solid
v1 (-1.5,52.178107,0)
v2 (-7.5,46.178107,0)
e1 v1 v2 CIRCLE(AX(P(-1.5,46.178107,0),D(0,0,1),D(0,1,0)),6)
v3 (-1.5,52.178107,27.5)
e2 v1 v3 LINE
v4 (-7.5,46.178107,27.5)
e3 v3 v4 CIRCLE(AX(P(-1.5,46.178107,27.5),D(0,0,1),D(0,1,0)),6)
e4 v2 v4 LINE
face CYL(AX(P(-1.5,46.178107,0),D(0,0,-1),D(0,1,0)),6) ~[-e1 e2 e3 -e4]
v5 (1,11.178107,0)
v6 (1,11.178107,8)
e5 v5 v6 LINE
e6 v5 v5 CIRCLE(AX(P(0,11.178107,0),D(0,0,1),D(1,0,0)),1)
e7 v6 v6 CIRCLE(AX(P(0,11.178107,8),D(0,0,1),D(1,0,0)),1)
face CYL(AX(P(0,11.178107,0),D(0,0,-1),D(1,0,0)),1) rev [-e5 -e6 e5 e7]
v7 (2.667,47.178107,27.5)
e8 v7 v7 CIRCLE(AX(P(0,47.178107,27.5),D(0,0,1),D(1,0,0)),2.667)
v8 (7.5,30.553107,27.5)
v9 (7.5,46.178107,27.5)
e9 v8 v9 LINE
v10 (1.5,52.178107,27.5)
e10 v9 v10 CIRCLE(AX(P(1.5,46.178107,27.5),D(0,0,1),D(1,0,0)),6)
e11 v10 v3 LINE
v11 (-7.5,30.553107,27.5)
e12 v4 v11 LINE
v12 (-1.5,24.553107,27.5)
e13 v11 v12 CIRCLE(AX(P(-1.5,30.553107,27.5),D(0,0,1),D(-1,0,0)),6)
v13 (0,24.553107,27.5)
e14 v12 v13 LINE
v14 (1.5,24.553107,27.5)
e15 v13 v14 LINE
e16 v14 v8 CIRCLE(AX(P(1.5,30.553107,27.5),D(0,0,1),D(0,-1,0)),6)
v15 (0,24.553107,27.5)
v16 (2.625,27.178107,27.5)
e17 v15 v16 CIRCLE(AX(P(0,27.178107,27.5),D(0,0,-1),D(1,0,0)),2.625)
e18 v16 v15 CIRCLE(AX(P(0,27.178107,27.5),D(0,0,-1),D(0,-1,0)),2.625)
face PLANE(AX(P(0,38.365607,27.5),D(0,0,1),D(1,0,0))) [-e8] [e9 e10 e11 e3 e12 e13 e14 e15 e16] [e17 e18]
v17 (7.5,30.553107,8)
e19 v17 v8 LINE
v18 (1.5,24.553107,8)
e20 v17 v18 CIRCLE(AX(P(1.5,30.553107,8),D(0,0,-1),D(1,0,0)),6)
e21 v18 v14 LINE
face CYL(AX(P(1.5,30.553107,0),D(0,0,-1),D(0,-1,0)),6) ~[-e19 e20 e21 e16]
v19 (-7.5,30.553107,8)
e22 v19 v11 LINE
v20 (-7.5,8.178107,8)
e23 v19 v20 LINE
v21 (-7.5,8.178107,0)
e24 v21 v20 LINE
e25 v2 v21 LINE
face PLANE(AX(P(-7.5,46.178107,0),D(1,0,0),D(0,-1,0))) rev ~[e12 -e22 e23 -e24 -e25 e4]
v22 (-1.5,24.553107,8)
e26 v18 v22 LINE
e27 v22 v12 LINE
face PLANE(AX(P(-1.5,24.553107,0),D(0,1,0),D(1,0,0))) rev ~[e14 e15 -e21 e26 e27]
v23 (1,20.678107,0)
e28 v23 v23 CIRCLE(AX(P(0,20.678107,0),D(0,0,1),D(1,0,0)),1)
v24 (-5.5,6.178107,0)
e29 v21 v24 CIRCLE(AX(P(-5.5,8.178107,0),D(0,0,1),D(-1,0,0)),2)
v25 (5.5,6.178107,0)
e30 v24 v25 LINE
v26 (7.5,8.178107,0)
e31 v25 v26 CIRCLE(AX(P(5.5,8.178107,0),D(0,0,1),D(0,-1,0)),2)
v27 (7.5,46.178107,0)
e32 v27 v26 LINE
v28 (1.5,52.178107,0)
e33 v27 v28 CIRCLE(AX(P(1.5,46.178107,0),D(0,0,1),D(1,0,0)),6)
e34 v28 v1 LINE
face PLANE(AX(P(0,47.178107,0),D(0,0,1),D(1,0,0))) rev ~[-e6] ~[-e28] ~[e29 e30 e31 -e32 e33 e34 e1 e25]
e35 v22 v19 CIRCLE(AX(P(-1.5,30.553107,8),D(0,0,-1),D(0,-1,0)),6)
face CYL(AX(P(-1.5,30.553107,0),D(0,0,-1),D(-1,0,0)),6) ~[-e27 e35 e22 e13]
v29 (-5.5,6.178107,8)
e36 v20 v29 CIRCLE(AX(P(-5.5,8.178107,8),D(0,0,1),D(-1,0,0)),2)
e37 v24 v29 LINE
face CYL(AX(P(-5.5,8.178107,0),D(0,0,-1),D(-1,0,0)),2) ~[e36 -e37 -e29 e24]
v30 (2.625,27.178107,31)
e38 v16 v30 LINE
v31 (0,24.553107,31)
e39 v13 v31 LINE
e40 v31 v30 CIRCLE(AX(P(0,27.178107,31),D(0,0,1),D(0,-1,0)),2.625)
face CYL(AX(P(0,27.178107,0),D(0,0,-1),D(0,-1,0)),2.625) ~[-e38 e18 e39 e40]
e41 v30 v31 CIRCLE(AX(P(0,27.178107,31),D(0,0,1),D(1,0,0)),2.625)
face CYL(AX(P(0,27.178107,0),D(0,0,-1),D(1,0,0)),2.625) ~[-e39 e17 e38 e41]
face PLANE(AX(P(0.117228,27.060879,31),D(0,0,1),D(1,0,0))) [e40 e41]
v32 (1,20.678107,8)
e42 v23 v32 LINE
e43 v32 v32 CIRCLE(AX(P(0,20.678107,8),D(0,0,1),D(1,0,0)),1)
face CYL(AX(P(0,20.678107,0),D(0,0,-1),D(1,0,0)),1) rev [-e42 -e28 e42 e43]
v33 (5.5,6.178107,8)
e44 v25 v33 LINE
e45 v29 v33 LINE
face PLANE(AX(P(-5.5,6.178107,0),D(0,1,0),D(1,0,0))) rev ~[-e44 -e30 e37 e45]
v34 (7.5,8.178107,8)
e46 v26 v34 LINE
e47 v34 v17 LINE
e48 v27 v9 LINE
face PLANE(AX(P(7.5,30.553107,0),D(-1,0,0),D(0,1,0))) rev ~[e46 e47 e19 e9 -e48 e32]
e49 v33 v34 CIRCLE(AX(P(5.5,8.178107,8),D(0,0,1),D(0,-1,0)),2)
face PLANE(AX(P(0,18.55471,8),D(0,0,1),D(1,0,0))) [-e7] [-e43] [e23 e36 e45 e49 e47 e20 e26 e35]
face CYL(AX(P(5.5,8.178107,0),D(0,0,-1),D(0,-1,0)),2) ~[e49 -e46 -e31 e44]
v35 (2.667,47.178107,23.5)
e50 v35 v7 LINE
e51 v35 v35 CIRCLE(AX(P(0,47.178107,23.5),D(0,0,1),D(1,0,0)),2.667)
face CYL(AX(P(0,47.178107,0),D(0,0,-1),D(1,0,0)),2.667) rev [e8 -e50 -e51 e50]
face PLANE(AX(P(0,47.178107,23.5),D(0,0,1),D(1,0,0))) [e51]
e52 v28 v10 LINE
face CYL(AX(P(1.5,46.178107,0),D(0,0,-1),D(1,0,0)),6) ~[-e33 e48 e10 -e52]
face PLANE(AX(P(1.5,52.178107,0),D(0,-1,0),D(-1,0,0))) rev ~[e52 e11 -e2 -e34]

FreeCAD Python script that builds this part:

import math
import FreeCAD as App
import Part
import Sketcher
Q = App.Units.Quantity

doc = App.newDocument("Part")
body = doc.addObject("PartDesign::Body", "Body")

# Sketch on XY plane
sketch1 = body.newObject("Sketcher::SketchObject", "Sketch")
sketch1.AttachmentSupport = (doc.getObject("XY_Plane"), [""])
sketch1.MapMode = "FlatFace"
sketch1.addGeometry(Part.LineSegment(App.Vector(1.5, 24.6, 0), App.Vector(-1.5, 24.6, 0)), False)
sketch1.addGeometry(Part.ArcOfCircle(Part.Circle(App.Vector(-1.5, 30.6, 0), App.Vector(0, 0, 1), 6), math.radians(180), math.radians(270)), False)
sketch1.addGeometry(Part.LineSegment(App.Vector(-7.5, 30.6, 0), App.Vector(-7.5, 8.2, 0)), False)
sketch1.addGeometry(Part.ArcOfCircle(Part.Circle(App.Vector(-5.5, 8.2, 0), App.Vector(0, 0, 1), 2), math.radians(180), math.radians(270)), False)
sketch1.addGeometry(Part.LineSegment(App.Vector(-5.5, 6.2, 0), App.Vector(5.5, 6.2, 0)), False)
sketch1.addGeometry(Part.ArcOfCircle(Part.Circle(App.Vector(5.5, 8.2, 0), App.Vector(0, 0, 1), 2), math.radians(-90), math.radians(0)), False)
sketch1.addGeometry(Part.LineSegment(App.Vector(7.5, 8.2, 0), App.Vector(7.5, 30.6, 0)), False)
sketch1.addGeometry(Part.ArcOfCircle(Part.Circle(App.Vector(1.5, 30.6, 0), App.Vector(0, 0, 1), 6), math.radians(-90), math.radians(0)), False)
sketch1.addGeometry(Part.Circle(App.Vector(0, 11.2, 0), App.Vector(0, 0, 1), 1), False)
sketch1.addGeometry(Part.Circle(App.Vector(0, 20.7, 0), App.Vector(0, 0, 1), 1), False)
sketch1.addConstraint(Sketcher.Constraint("Tangent", 0, 2, 1, 2))
sketch1.addConstraint(Sketcher.Constraint("Tangent", 1, 1, 2, 1))
sketch1.addConstraint(Sketcher.Constraint("Tangent", 2, 2, 3, 1))
sketch1.addConstraint(Sketcher.Constraint("Tangent", 3, 2, 4, 1))
sketch1.addConstraint(Sketcher.Constraint("Tangent", 4, 2, 5, 1))
sketch1.addConstraint(Sketcher.Constraint("Tangent", 5, 2, 6, 1))
sketch1.addConstraint(Sketcher.Constraint("Tangent", 6, 2, 7, 2))
sketch1.addConstraint(Sketcher.Constraint("Tangent", 7, 1, 0, 1))
sketch1.addConstraint(Sketcher.Constraint("Horizontal", 0))
sketch1.addConstraint(Sketcher.Constraint("Vertical", 2))
sketch1.addConstraint(Sketcher.Constraint("Horizontal", 4))
sketch1.addConstraint(Sketcher.Constraint("Vertical", 6))
sketch1.addConstraint(Sketcher.Constraint("Equal", 3, 5))
sketch1.addConstraint(Sketcher.Constraint("Equal", 1, 7))
sketch1.addConstraint(Sketcher.Constraint("Equal", 8, 9))
sketch1.addConstraint(Sketcher.Constraint("PointOnObject", 8, 3, -2))
sketch1.addConstraint(Sketcher.Constraint("PointOnObject", 9, 3, -2))
sketch1.addConstraint(Sketcher.Constraint("Diameter", 8, Q("2 mm")))
sketch1.addConstraint(Sketcher.Constraint("Radius", 1, Q("6 mm")))
sketch1.addConstraint(Sketcher.Constraint("Radius", 3, Q("2 mm")))
sketch1.addConstraint(Sketcher.Constraint("DistanceX", 0, 2, 0, 1, Q("3 mm")))
sketch1.addConstraint(Sketcher.Constraint("DistanceY", 3, 3, 8, 3, Q("3 mm")))
sketch1.addConstraint(Sketcher.Constraint("DistanceX", 1, 3, -1, 1, Q("1.5 mm")))
sketch1.addConstraint(Sketcher.Constraint("DistanceY", 8, 3, 9, 3, Q("9.5 mm")))
sketch1.addConstraint(Sketcher.Constraint("DistanceY", 2, 2, 2, 1, Q("22.375 mm")))
sketch1.addConstraint(Sketcher.Constraint("DistanceY", -1, 1, 1, 3, Q("30.553107 mm")))
pad1 = body.newObject("PartDesign::Pad", "Pad")
pad1.Profile = sketch1
pad1.Length = 8

# Sketch on XY plane
sketch2 = body.newObject("Sketcher::SketchObject", "Sketch001")
sketch2.AttachmentSupport = (doc.getObject("XY_Plane"), [""])
sketch2.MapMode = "FlatFace"
sketch2.addGeometry(Part.ArcOfCircle(Part.Circle(App.Vector(-1.5, 46.2, 0), App.Vector(0, 0, 1), 6), math.radians(90), math.radians(180)), False)
sketch2.addGeometry(Part.LineSegment(App.Vector(-7.5, 46.2, 0), App.Vector(-7.5, 30.6, 0)), False)
sketch2.addGeometry(Part.ArcOfCircle(Part.Circle(App.Vector(-1.5, 30.6, 0), App.Vector(0, 0, 1), 6), math.radians(180), math.radians(270)), False)
sketch2.addGeometry(Part.LineSegment(App.Vector(-1.5, 24.6, 0), App.Vector(1.5, 24.6, 0)), False)
sketch2.addGeometry(Part.ArcOfCircle(Part.Circle(App.Vector(1.5, 30.6, 0), App.Vector(0, 0, 1), 6), math.radians(-90), math.radians(0)), False)
sketch2.addGeometry(Part.LineSegment(App.Vector(7.5, 30.6, 0), App.Vector(7.5, 46.2, 0)), False)
sketch2.addGeometry(Part.ArcOfCircle(Part.Circle(App.Vector(1.5, 46.2, 0), App.Vector(0, 0, 1), 6), math.radians(0), math.radians(90)), False)
sketch2.addGeometry(Part.LineSegment(App.Vector(1.5, 52.2, 0), App.Vector(-1.5, 52.2, 0)), False)
sketch2.addGeometry(Part.Circle(App.Vector(0, 47.2, 0), App.Vector(0, 0, 1), 2.7), False)
sketch2.addConstraint(Sketcher.Constraint("Tangent", 0, 2, 1, 1))
sketch2.addConstraint(Sketcher.Constraint("Tangent", 1, 2, 2, 1))
sketch2.addConstraint(Sketcher.Constraint("Tangent", 2, 2, 3, 1))
sketch2.addConstraint(Sketcher.Constraint("Tangent", 3, 2, 4, 1))
sketch2.addConstraint(Sketcher.Constraint("Tangent", 4, 2, 5, 1))
sketch2.addConstraint(Sketcher.Constraint("Tangent", 5, 2, 6, 1))
sketch2.addConstraint(Sketcher.Constraint("Tangent", 6, 2, 7, 1))
sketch2.addConstraint(Sketcher.Constraint("Tangent", 7, 2, 0, 1))
sketch2.addConstraint(Sketcher.Constraint("Vertical", 1))
sketch2.addConstraint(Sketcher.Constraint("Horizontal", 3))
sketch2.addConstraint(Sketcher.Constraint("Vertical", 5))
sketch2.addConstraint(Sketcher.Constraint("Horizontal", 7))
sketch2.addConstraint(Sketcher.Constraint("Equal", 0, 2))
sketch2.addConstraint(Sketcher.Constraint("Equal", 2, 4))
sketch2.addConstraint(Sketcher.Constraint("Equal", 4, 6))
sketch2.addConstraint(Sketcher.Constraint("PointOnObject", 8, 3, -2))
sketch2.addConstraint(Sketcher.Constraint("Radius", 0, Q("6 mm")))
sketch2.addConstraint(Sketcher.Constraint("DistanceX", 3, 1, 3, 2, Q("3 mm")))
sketch2.addConstraint(Sketcher.Constraint("Diameter", 8, Q("5.334 mm")))
sketch2.addConstraint(Sketcher.Constraint("DistanceY", 0, 3, 8, 3, Q("1 mm")))
sketch2.addConstraint(Sketcher.Constraint("DistanceX", 0, 3, -1, 1, Q("1.5 mm")))
sketch2.addConstraint(Sketcher.Constraint("DistanceY", 1, 2, 1, 1, Q("15.625 mm")))
sketch2.addConstraint(Sketcher.Constraint("DistanceY", -1, 1, 0, 3, Q("46.178107 mm")))
pad2 = body.newObject("PartDesign::Pad", "Pad001")
pad2.Profile = sketch2
pad2.Length = 27.5

# Sketch on XY plane
sketch3 = body.newObject("Sketcher::SketchObject", "Sketch002")
sketch3.AttachmentSupport = (doc.getObject("XY_Plane"), [""])
sketch3.MapMode = "FlatFace"
sketch3.addGeometry(Part.ArcOfCircle(Part.Circle(App.Vector(0, 27.2, 0), App.Vector(0, 0, 1), 2.6), math.radians(-90), math.radians(0)), False)
sketch3.addGeometry(Part.ArcOfCircle(Part.Circle(App.Vector(0, 27.2, 0), App.Vector(0, 0, 1), 2.6), math.radians(0), math.radians(270)), False)
sketch3.addConstraint(Sketcher.Constraint("Tangent", 0, 1, 1, 2))
sketch3.addConstraint(Sketcher.Constraint("Coincident", 1, 1, 0, 2))
sketch3.addConstraint(Sketcher.Constraint("PointOnObject", 0, 3, -2))
sketch3.addConstraint(Sketcher.Constraint("PointOnObject", 0, 1, -2))
sketch3.addConstraint(Sketcher.Constraint("Horizontal", 0, 3, 1, 1))
sketch3.addConstraint(Sketcher.Constraint("Radius", 0, Q("2.625 mm")))
sketch3.addConstraint(Sketcher.Constraint("DistanceY", -1, 1, 0, 3, Q("27.178107 mm")))
pad3 = body.newObject("PartDesign::Pad", "Pad002")
pad3.Profile = sketch3
pad3.Length = 31

# Sketch on XY plane
sketch4 = body.newObject("Sketcher::SketchObject", "Sketch003")
sketch4.AttachmentSupport = (doc.getObject("XY_Plane"), [""])
sketch4.MapMode = "FlatFace"
sketch4.addGeometry(Part.Circle(App.Vector(0, 47.2, 0), App.Vector(0, 0, 1), 2.7), False)
sketch4.addConstraint(Sketcher.Constraint("PointOnObject", 0, 3, -2))
sketch4.addConstraint(Sketcher.Constraint("Diameter", 0, Q("5.334 mm")))
sketch4.addConstraint(Sketcher.Constraint("DistanceY", -1, 1, 0, 3, Q("47.178107 mm")))
pad4 = body.newObject("PartDesign::Pad", "Pad003")
pad4.Profile = sketch4
pad4.Length = 23.5

doc.recompute()
